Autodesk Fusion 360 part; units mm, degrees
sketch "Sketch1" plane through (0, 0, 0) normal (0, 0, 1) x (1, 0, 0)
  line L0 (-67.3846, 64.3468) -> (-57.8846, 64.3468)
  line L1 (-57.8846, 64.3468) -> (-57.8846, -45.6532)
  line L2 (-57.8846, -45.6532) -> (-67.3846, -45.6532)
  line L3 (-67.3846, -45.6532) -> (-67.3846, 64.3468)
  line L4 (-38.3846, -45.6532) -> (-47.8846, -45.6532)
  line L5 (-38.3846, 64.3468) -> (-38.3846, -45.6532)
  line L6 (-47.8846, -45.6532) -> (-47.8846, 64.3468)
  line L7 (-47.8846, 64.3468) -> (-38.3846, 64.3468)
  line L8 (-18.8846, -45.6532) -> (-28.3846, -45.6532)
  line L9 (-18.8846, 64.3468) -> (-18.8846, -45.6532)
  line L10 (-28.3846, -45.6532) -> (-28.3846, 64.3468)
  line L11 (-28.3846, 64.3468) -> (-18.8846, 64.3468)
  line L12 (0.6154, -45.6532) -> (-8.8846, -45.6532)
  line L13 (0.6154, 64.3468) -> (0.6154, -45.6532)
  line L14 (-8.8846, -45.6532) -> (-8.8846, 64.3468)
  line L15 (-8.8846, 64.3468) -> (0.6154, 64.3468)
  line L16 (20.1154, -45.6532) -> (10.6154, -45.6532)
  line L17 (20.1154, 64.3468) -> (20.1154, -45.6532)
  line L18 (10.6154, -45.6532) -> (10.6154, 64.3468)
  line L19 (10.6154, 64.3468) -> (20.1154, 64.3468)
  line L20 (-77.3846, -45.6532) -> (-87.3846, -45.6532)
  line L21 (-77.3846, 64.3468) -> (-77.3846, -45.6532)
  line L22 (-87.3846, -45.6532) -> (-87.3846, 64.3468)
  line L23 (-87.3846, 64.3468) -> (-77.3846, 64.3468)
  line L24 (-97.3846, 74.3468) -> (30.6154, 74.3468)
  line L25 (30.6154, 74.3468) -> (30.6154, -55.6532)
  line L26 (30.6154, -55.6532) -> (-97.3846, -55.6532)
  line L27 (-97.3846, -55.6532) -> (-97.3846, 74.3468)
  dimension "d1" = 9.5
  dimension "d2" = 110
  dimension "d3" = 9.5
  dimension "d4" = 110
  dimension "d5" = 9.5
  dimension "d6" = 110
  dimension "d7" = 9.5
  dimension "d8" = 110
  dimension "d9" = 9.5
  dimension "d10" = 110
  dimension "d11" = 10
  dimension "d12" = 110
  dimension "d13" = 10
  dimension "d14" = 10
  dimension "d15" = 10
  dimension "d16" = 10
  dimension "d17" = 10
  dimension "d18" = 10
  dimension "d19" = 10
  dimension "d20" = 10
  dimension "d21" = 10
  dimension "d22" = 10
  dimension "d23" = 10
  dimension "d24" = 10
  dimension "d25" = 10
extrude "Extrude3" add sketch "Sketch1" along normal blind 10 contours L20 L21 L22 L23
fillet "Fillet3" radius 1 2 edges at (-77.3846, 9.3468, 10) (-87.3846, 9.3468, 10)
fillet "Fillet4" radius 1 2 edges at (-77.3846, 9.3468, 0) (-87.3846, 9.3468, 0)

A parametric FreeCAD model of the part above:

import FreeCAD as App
import Part
import Sketcher
Q = App.Units.Quantity


def edges_at(feature, points):
    """Names of the edges that pass closest to the given points."""
    edges = feature.Shape.Edges
    near = lambda p: min(range(len(edges)), key=lambda i: edges[i].distToShape(Part.Vertex(*p))[0])
    return sorted({f"Edge{near(p) + 1}" for p in points})

doc = App.newDocument("Part")
params = doc.addObject("Spreadsheet::Sheet", "Params")
for row, (alias, value) in enumerate([
    ("sketch1_width", "10 mm"),
    ("sketch1_height", "110 mm"),
    ("pad1_length", "10 mm"),
    ("fillet_radius", "1 mm"),
    ("fillet2_radius", "1 mm"),
], start=1):
    params.set(f"A{row}", alias)
    params.set(f"B{row}", "=" + value)
    params.setAlias(f"B{row}", alias)

body = doc.addObject("PartDesign::Body", "Body")

# Sketch on XY plane
sketch1 = doc.addObject("Sketcher::SketchObject", "Sketch")
body.addObject(sketch1)
sketch1.AttachmentSupport = (doc.XY_Plane, [""])
sketch1.MapMode = "FlatFace"
sketch1.addGeometry(Part.LineSegment(App.Vector(-87.3846, -45.6532, 0), App.Vector(-77.3846, -45.6532, 0)), False)
sketch1.addGeometry(Part.LineSegment(App.Vector(-77.3846, -45.6532, 0), App.Vector(-77.3846, 64.3468, 0)), False)
sketch1.addGeometry(Part.LineSegment(App.Vector(-77.3846, 64.3468, 0), App.Vector(-87.3846, 64.3468, 0)), False)
sketch1.addGeometry(Part.LineSegment(App.Vector(-87.3846, 64.3468, 0), App.Vector(-87.3846, -45.6532, 0)), False)
sketch1.addConstraint(Sketcher.Constraint("Coincident", 0, 2, 1, 1))
sketch1.addConstraint(Sketcher.Constraint("Coincident", 1, 2, 2, 1))
sketch1.addConstraint(Sketcher.Constraint("Coincident", 2, 2, 3, 1))
sketch1.addConstraint(Sketcher.Constraint("Coincident", 3, 2, 0, 1))
sketch1.addConstraint(Sketcher.Constraint("Horizontal", 0))
sketch1.addConstraint(Sketcher.Constraint("Vertical", 1))
sketch1.addConstraint(Sketcher.Constraint("Horizontal", 2))
sketch1.addConstraint(Sketcher.Constraint("Vertical", 3))
sketch1.addConstraint(Sketcher.Constraint("DistanceX", 0, 1, 0, 2, Q("10 mm")))
sketch1.addConstraint(Sketcher.Constraint("DistanceY", 1, 1, 1, 2, Q("110 mm")))
sketch1.addConstraint(Sketcher.Constraint("DistanceX", 0, 2, -1, 1, Q("77.3846 mm")))
sketch1.addConstraint(Sketcher.Constraint("DistanceY", 0, 2, -1, 1, Q("45.6532 mm")))
sketch1.setExpression("Constraints[8]", "Params.sketch1_width")
sketch1.setExpression("Constraints[9]", "Params.sketch1_height")
pad1 = doc.addObject("PartDesign::Pad", "Pad")
body.addObject(pad1)
pad1.Profile = sketch1
pad1.setExpression("Length", "Params.pad1_length")
doc.recompute()

fillet = doc.addObject("PartDesign::Fillet", "Fillet")
body.addObject(fillet)
fillet.Base = (pad1, edges_at(pad1, [(-77.385, 9.347, 10), (-87.385, 9.347, 10)]))
fillet.setExpression("Radius", "Params.fillet_radius")
doc.recompute()

fillet2 = doc.addObject("PartDesign::Fillet", "Fillet001")
body.addObject(fillet2)
fillet2.Base = (fillet, edges_at(fillet, [(-77.385, 9.347, 0), (-87.385, 9.347, 0)]))
fillet2.setExpression("Radius", "Params.fillet2_radius")

doc.recompute()
